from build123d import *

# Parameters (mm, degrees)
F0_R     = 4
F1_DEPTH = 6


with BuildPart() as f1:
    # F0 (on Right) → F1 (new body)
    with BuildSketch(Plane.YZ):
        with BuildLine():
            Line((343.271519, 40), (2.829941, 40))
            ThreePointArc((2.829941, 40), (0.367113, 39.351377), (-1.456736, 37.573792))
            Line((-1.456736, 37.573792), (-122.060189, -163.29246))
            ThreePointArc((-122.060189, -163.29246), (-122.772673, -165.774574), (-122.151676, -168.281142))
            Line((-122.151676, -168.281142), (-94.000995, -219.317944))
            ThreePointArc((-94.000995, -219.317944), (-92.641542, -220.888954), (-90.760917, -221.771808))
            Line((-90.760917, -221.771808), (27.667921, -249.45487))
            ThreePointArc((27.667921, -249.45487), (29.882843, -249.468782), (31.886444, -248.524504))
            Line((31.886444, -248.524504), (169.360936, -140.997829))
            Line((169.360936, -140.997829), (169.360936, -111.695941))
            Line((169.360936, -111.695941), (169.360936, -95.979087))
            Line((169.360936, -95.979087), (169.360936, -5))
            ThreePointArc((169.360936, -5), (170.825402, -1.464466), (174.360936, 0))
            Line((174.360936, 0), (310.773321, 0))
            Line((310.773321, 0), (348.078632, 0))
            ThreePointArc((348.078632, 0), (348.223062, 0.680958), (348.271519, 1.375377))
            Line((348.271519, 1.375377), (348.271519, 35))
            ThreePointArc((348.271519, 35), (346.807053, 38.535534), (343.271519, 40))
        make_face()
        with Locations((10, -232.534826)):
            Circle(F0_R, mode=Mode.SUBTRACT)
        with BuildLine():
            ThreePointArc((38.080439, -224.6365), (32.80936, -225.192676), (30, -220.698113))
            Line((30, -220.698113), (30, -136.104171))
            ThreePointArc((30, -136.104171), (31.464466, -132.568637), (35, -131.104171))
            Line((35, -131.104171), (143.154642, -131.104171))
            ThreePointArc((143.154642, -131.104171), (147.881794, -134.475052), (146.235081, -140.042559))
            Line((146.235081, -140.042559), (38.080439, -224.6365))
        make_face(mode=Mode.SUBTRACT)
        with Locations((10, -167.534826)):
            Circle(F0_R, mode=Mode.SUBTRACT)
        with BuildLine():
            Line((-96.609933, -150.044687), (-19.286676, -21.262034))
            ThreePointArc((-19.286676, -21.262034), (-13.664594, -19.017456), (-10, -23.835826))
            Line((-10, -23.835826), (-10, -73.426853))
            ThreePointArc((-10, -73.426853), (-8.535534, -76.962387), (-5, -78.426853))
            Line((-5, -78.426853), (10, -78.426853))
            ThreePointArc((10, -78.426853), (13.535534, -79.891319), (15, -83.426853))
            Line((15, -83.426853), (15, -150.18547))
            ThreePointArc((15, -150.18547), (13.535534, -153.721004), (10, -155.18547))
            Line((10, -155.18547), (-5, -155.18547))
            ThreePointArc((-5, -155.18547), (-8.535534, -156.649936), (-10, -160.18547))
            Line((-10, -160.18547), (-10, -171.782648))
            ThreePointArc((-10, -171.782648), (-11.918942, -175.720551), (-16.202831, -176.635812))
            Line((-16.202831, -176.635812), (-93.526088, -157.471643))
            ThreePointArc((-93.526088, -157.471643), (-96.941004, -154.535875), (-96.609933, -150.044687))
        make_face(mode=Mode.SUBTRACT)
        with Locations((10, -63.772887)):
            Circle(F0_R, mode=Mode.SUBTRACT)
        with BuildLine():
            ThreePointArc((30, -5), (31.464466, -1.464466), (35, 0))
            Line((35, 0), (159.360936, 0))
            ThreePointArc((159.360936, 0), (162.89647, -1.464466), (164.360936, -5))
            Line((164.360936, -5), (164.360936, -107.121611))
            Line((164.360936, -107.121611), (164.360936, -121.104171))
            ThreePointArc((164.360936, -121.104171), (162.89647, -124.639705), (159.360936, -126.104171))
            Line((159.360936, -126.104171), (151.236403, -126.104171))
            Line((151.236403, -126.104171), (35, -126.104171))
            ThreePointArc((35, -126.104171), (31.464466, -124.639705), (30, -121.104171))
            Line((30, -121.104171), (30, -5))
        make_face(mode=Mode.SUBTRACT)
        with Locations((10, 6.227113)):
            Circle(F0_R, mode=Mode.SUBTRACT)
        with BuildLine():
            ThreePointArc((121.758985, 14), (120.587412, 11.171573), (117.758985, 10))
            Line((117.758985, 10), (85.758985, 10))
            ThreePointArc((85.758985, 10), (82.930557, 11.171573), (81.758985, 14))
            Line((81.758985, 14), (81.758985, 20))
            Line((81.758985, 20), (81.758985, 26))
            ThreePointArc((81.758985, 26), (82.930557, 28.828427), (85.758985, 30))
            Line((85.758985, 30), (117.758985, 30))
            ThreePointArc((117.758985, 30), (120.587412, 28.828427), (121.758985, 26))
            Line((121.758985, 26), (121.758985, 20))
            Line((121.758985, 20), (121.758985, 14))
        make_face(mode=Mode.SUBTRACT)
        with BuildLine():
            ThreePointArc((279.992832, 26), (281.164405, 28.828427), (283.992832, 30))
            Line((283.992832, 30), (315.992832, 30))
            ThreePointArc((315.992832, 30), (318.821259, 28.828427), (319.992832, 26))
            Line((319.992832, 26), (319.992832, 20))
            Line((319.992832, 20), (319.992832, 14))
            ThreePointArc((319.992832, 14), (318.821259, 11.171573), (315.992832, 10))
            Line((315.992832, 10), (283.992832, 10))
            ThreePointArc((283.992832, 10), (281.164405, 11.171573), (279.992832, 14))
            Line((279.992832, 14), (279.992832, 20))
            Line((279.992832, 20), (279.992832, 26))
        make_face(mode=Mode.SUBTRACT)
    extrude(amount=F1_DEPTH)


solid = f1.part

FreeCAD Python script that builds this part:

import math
import FreeCAD as App
import Part
import Sketcher

doc = App.newDocument("Part")
body = doc.addObject("PartDesign::Body", "Body")

sketch1 = body.newObject("Sketcher::SketchObject", "Sketch")
sketch1.AttachmentSupport = (doc.getObject("YZ_Plane"), [""])
sketch1.MapMode = "FlatFace"
sketch1.addGeometry([
    Part.LineSegment(App.Vector(343.271519, 40, 0), App.Vector(2.829941, 40, 0)),
    Part.ArcOfCircle(Part.Circle(App.Vector(2.82994, 35, 0), App.Vector(0, 0, 1), 5), math.radians(89.99999), math.radians(149.018696)),
    Part.LineSegment(App.Vector(-1.456736, 37.573792, 0), App.Vector(-122.060189, -163.29246, 0)),
    Part.ArcOfCircle(Part.Circle(App.Vector(-117.773517, -165.866253, 0), App.Vector(0, 0, 1), 4.999997), math.radians(149.018661), math.radians(208.88009)),
    Part.LineSegment(App.Vector(-122.151676, -168.281142, 0), App.Vector(-94.000995, -219.317944, 0)),
    Part.ArcOfCircle(Part.Circle(App.Vector(-89.622836, -216.903058, 0), App.Vector(0, 0, 1), 4.999995), math.radians(-151.119946), math.radians(-103.156785)),
    Part.LineSegment(App.Vector(-90.760917, -221.771808, 0), App.Vector(27.667921, -249.45487, 0)),
    Part.ArcOfCircle(Part.Circle(App.Vector(28.806006, -244.586121, 0), App.Vector(0, 0, 1), 4.999996), math.radians(-103.156832), math.radians(-51.96898)),
    Part.LineSegment(App.Vector(31.886444, -248.524504, 0), App.Vector(169.360936, -140.997829, 0)),
    Part.LineSegment(App.Vector(169.360936, -140.997829, 0), App.Vector(169.360936, -5, 0)),
    Part.ArcOfCircle(Part.Circle(App.Vector(174.360936, -5, 0), App.Vector(0, 0, 1), 5), math.radians(89.999996), math.radians(180.000004)),
    Part.LineSegment(App.Vector(174.360936, 0, 0), App.Vector(348.078632, 0, 0)),
    Part.ArcOfCircle(Part.Circle(App.Vector(343.27149, 1.375382, 0), App.Vector(0, 0, 1), 5.000029), math.radians(-15.966473), math.radians(-0.000057)),
    Part.LineSegment(App.Vector(348.271519, 1.375377, 0), App.Vector(348.271519, 35, 0)),
    Part.ArcOfCircle(Part.Circle(App.Vector(343.271519, 35, 0), App.Vector(0, 0, 1), 5), math.radians(-0.000004), math.radians(90.000004)),
    Part.Circle(App.Vector(10, -232.534826, 0), App.Vector(0, 0, 1), 4),
    Part.LineSegment(App.Vector(146.235081, -140.042559, 0), App.Vector(38.080439, -224.6365, 0)),
    Part.ArcOfCircle(Part.Circle(App.Vector(35, -220.698113, 0), App.Vector(0, 0, 1), 5), math.radians(179.999998), math.radians(308.031012)),
    Part.LineSegment(App.Vector(30, -220.698113, 0), App.Vector(30, -136.104171, 0)),
    Part.ArcOfCircle(Part.Circle(App.Vector(35, -136.104171, 0), App.Vector(0, 0, 1), 5), math.radians(89.999996), math.radians(180.000004)),
    Part.LineSegment(App.Vector(35, -131.104171, 0), App.Vector(143.154642, -131.104171, 0)),
    Part.ArcOfCircle(Part.Circle(App.Vector(143.154641, -136.104172, 0), App.Vector(0, 0, 1), 5.000001), math.radians(-51.968987), math.radians(89.999989)),
    Part.Circle(App.Vector(10, -167.534826, 0), App.Vector(0, 0, 1), 4),
    Part.ArcOfCircle(Part.Circle(App.Vector(-92.323256, -152.618479, 0), App.Vector(0, 0, 1), 5.000001), math.radians(149.018699), math.radians(256.080026)),
    Part.LineSegment(App.Vector(-96.609933, -150.044687, 0), App.Vector(-19.286676, -21.262034, 0)),
    Part.ArcOfCircle(Part.Circle(App.Vector(-15, -23.835826, 0), App.Vector(0, 0, 1), 5), math.radians(0), math.radians(149.018691)),
    Part.LineSegment(App.Vector(-10, -23.835826, 0), App.Vector(-10, -73.426853, 0)),
    Part.ArcOfCircle(Part.Circle(App.Vector(-5, -73.426853, 0), App.Vector(0, 0, 1), 5), math.radians(179.999996), math.radians(270.000004)),
    Part.LineSegment(App.Vector(-5, -78.426853, 0), App.Vector(10, -78.426853, 0)),
    Part.ArcOfCircle(Part.Circle(App.Vector(10, -83.426853, 0), App.Vector(0, 0, 1), 5), math.radians(-0.000004), math.radians(90.000004)),
    Part.LineSegment(App.Vector(15, -83.426853, 0), App.Vector(15, -150.18547, 0)),
    Part.ArcOfCircle(Part.Circle(App.Vector(10, -150.18547, 0), App.Vector(0, 0, 1), 5), math.radians(-90.000004), math.radians(0.000004)),
    Part.LineSegment(App.Vector(10, -155.18547, 0), App.Vector(-5, -155.18547, 0)),
    Part.ArcOfCircle(Part.Circle(App.Vector(-5, -160.18547, 0), App.Vector(0, 0, 1), 5), math.radians(89.999996), math.radians(180.000004)),
    Part.LineSegment(App.Vector(-10, -160.18547, 0), App.Vector(-10, -171.782648, 0)),
    Part.ArcOfCircle(Part.Circle(App.Vector(-15.000001, -171.782647, 0), App.Vector(0, 0, 1), 5.000001), math.radians(-103.919951), math.radians(-0.000006)),
    Part.LineSegment(App.Vector(-16.202831, -176.635812, 0), App.Vector(-93.526088, -157.471643, 0)),
    Part.Circle(App.Vector(10, -63.772887, 0), App.Vector(0, 0, 1), 4),
    Part.LineSegment(App.Vector(30, -121.104171, 0), App.Vector(30, -5, 0)),
    Part.ArcOfCircle(Part.Circle(App.Vector(35, -5, 0), App.Vector(0, 0, 1), 5), math.radians(89.999996), math.radians(180.000004)),
    Part.LineSegment(App.Vector(35, 0, 0), App.Vector(159.360936, 0, 0)),
    Part.ArcOfCircle(Part.Circle(App.Vector(159.360936, -5, 0), App.Vector(0, 0, 1), 5), math.radians(-0.000004), math.radians(90.000004)),
    Part.LineSegment(App.Vector(164.360936, -5, 0), App.Vector(164.360936, -121.104171, 0)),
    Part.ArcOfCircle(Part.Circle(App.Vector(159.360936, -121.104171, 0), App.Vector(0, 0, 1), 5), math.radians(-90.000004), math.radians(0.000004)),
    Part.LineSegment(App.Vector(159.360936, -126.104171, 0), App.Vector(35, -126.104171, 0)),
    Part.ArcOfCircle(Part.Circle(App.Vector(35, -121.104171, 0), App.Vector(0, 0, 1), 5), math.radians(179.999996), math.radians(270.000004)),
    Part.Circle(App.Vector(10, 6.227113, 0), App.Vector(0, 0, 1), 4),
    Part.LineSegment(App.Vector(121.758985, 26, 0), App.Vector(121.758985, 14, 0)),
    Part.ArcOfCircle(Part.Circle(App.Vector(117.758985, 14, 0), App.Vector(0, 0, 1), 4), math.radians(-89.999994), math.radians(-0.000006)),
    Part.LineSegment(App.Vector(117.758985, 10, 0), App.Vector(85.758985, 10, 0)),
    Part.ArcOfCircle(Part.Circle(App.Vector(85.758984, 13.999999, 0), App.Vector(0, 0, 1), 3.999999), math.radians(179.999982), math.radians(270.000018)),
    Part.LineSegment(App.Vector(81.758985, 14, 0), App.Vector(81.758985, 26, 0)),
    Part.ArcOfCircle(Part.Circle(App.Vector(85.758984, 26.000001, 0), App.Vector(0, 0, 1), 3.999999), math.radians(89.999982), math.radians(180.000018)),
    Part.LineSegment(App.Vector(85.758985, 30, 0), App.Vector(117.758985, 30, 0)),
    Part.ArcOfCircle(Part.Circle(App.Vector(117.758985, 26, 0), App.Vector(0, 0, 1), 4), math.radians(0.000006), math.radians(89.999994)),
    Part.LineSegment(App.Vector(279.992832, 14, 0), App.Vector(279.992832, 26, 0)),
    Part.ArcOfCircle(Part.Circle(App.Vector(283.992832, 26, 0), App.Vector(0, 0, 1), 4), math.radians(90.000006), math.radians(179.999994)),
    Part.LineSegment(App.Vector(283.992832, 30, 0), App.Vector(315.992832, 30, 0)),
    Part.ArcOfCircle(Part.Circle(App.Vector(315.992832, 26, 0), App.Vector(0, 0, 1), 4), math.radians(0.000006), math.radians(89.999994)),
    Part.LineSegment(App.Vector(319.992832, 26, 0), App.Vector(319.992832, 14, 0)),
    Part.ArcOfCircle(Part.Circle(App.Vector(315.992832, 14, 0), App.Vector(0, 0, 1), 4), math.radians(-89.999994), math.radians(-0.000006)),
    Part.LineSegment(App.Vector(315.992832, 10, 0), App.Vector(283.992832, 10, 0)),
    Part.ArcOfCircle(Part.Circle(App.Vector(283.992832, 14, 0), App.Vector(0, 0, 1), 4), math.radians(-179.999994), math.radians(-90.000006)),
], False)
sketch1.addConstraint([
    Sketcher.Constraint("Tangent", 0, 2, 1, 1),
    Sketcher.Constraint("Tangent", 1, 2, 2, 1),
    Sketcher.Constraint("Tangent", 2, 2, 3, 1),
    Sketcher.Constraint("Tangent", 3, 2, 4, 1),
    Sketcher.Constraint("Tangent", 4, 2, 5, 1),
    Sketcher.Constraint("Tangent", 5, 2, 6, 1),
    Sketcher.Constraint("Tangent", 6, 2, 7, 1),
    Sketcher.Constraint("Tangent", 7, 2, 8, 1),
    Sketcher.Constraint("Coincident", 8, 2, 9, 1),
    Sketcher.Constraint("Tangent", 9, 2, 10, 2),
    Sketcher.Constraint("Tangent", 10, 1, 11, 1),
    Sketcher.Constraint("Coincident", 11, 2, 12, 1),
    Sketcher.Constraint("Tangent", 12, 2, 13, 1),
    Sketcher.Constraint("Tangent", 13, 2, 14, 1),
    Sketcher.Constraint("Tangent", 14, 2, 0, 1),
    Sketcher.Constraint("Tangent", 16, 2, 17, 2),
    Sketcher.Constraint("Tangent", 17, 1, 18, 1),
    Sketcher.Constraint("Tangent", 18, 2, 19, 2),
    Sketcher.Constraint("Tangent", 19, 1, 20, 1),
    Sketcher.Constraint("Tangent", 20, 2, 21, 2),
    Sketcher.Constraint("Tangent", 21, 1, 16, 1),
    Sketcher.Constraint("Tangent", 23, 1, 24, 1),
    Sketcher.Constraint("Tangent", 24, 2, 25, 2),
    Sketcher.Constraint("Tangent", 25, 1, 26, 1),
    Sketcher.Constraint("Tangent", 26, 2, 27, 1),
    Sketcher.Constraint("Tangent", 27, 2, 28, 1),
    Sketcher.Constraint("Tangent", 28, 2, 29, 2),
    Sketcher.Constraint("Tangent", 29, 1, 30, 1),
    Sketcher.Constraint("Tangent", 30, 2, 31, 2),
    Sketcher.Constraint("Tangent", 31, 1, 32, 1),
    Sketcher.Constraint("Tangent", 32, 2, 33, 1),
    Sketcher.Constraint("Tangent", 33, 2, 34, 1),
    Sketcher.Constraint("Tangent", 34, 2, 35, 2),
    Sketcher.Constraint("Tangent", 35, 1, 36, 1),
    Sketcher.Constraint("Tangent", 36, 2, 23, 2),
    Sketcher.Constraint("Tangent", 38, 2, 39, 2),
    Sketcher.Constraint("Tangent", 39, 1, 40, 1),
    Sketcher.Constraint("Tangent", 40, 2, 41, 2),
    Sketcher.Constraint("Tangent", 41, 1, 42, 1),
    Sketcher.Constraint("Tangent", 42, 2, 43, 2),
    Sketcher.Constraint("Tangent", 43, 1, 44, 1),
    Sketcher.Constraint("Tangent", 44, 2, 45, 2),
    Sketcher.Constraint("Tangent", 45, 1, 38, 1),
    Sketcher.Constraint("Tangent", 47, 2, 48, 2),
    Sketcher.Constraint("Tangent", 48, 1, 49, 1),
    Sketcher.Constraint("Tangent", 49, 2, 50, 2),
    Sketcher.Constraint("Tangent", 50, 1, 51, 1),
    Sketcher.Constraint("Tangent", 51, 2, 52, 2),
    Sketcher.Constraint("Tangent", 52, 1, 53, 1),
    Sketcher.Constraint("Tangent", 53, 2, 54, 2),
    Sketcher.Constraint("Tangent", 54, 1, 47, 1),
    Sketcher.Constraint("Tangent", 55, 2, 56, 2),
    Sketcher.Constraint("Tangent", 56, 1, 57, 1),
    Sketcher.Constraint("Tangent", 57, 2, 58, 2),
    Sketcher.Constraint("Tangent", 58, 1, 59, 1),
    Sketcher.Constraint("Tangent", 59, 2, 60, 2),
    Sketcher.Constraint("Tangent", 60, 1, 61, 1),
    Sketcher.Constraint("Tangent", 61, 2, 62, 2),
    Sketcher.Constraint("Tangent", 62, 1, 55, 1),
    Sketcher.Constraint("Horizontal", 0),
    Sketcher.Constraint("Vertical", 9),
    Sketcher.Constraint("Horizontal", 11),
    Sketcher.Constraint("Vertical", 13),
    Sketcher.Constraint("Vertical", 18),
    Sketcher.Constraint("Horizontal", 20),
    Sketcher.Constraint("Vertical", 26),
    Sketcher.Constraint("Horizontal", 28),
    Sketcher.Constraint("Vertical", 30),
    Sketcher.Constraint("Horizontal", 32),
    Sketcher.Constraint("Vertical", 34),
    Sketcher.Constraint("Vertical", 38),
    Sketcher.Constraint("Horizontal", 40),
    Sketcher.Constraint("Vertical", 42),
    Sketcher.Constraint("Horizontal", 44),
    Sketcher.Constraint("Vertical", 47),
    Sketcher.Constraint("Horizontal", 49),
    Sketcher.Constraint("Vertical", 51),
    Sketcher.Constraint("Horizontal", 53),
    Sketcher.Constraint("Vertical", 55),
    Sketcher.Constraint("Horizontal", 57),
    Sketcher.Constraint("Vertical", 59),
    Sketcher.Constraint("Horizontal", 61),
    Sketcher.Constraint("Equal", 3, 5),
    Sketcher.Constraint("Equal", 5, 7),
    Sketcher.Constraint("Equal", 1, 10),
    Sketcher.Constraint("Equal", 10, 14),
    Sketcher.Constraint("Equal", 14, 17),
    Sketcher.Constraint("Equal", 17, 19),
    Sketcher.Constraint("Equal", 19, 21),
    Sketcher.Constraint("Equal", 15, 22),
    Sketcher.Constraint("Equal", 21, 23),
    Sketcher.Constraint("Equal", 23, 25),
    Sketcher.Constraint("Equal", 25, 27),
    Sketcher.Constraint("Equal", 27, 29),
    Sketcher.Constraint("Equal", 29, 31),
    Sketcher.Constraint("Equal", 31, 33),
    Sketcher.Constraint("Equal", 33, 35),
    Sketcher.Constraint("Equal", 22, 37),
    Sketcher.Constraint("Equal", 35, 39),
    Sketcher.Constraint("Equal", 39, 41),
    Sketcher.Constraint("Equal", 41, 43),
    Sketcher.Constraint("Equal", 43, 45),
    Sketcher.Constraint("Equal", 37, 46),
    Sketcher.Constraint("Equal", 46, 48),
    Sketcher.Constraint("Equal", 48, 50),
    Sketcher.Constraint("Equal", 50, 52),
    Sketcher.Constraint("Equal", 52, 54),
    Sketcher.Constraint("Equal", 54, 56),
    Sketcher.Constraint("Equal", 56, 58),
    Sketcher.Constraint("Equal", 58, 60),
    Sketcher.Constraint("Equal", 60, 62),
    Sketcher.Constraint("PointOnObject", 10, 1, -1),
    Sketcher.Constraint("PointOnObject", 39, 1, -1),
    Sketcher.Constraint("Parallel", 8, 16),
    Sketcher.Constraint("Parallel", 2, 24),
    Sketcher.Constraint("Horizontal", 54, 3, 56, 3),
    Sketcher.Constraint("Horizontal", 50, 3, 60, 3),
    Sketcher.Constraint("Vertical", 15, 3, 22, 3),
    Sketcher.Constraint("Vertical", 22, 3, 29, 3),
    Sketcher.Constraint("Vertical", 27, 3, 33, 3),
    Sketcher.Constraint("Vertical", 31, 3, 37, 3),
    Sketcher.Constraint("Vertical", 19, 3, 39, 3),
    Sketcher.Constraint("Vertical", 37, 3, 46, 3),
    Sketcher.Constraint("Equal", 53, 57),
    Sketcher.Constraint("Diameter", 15, 8.0),
    Sketcher.Constraint("Radius", 1, 5.0),
    Sketcher.Constraint("DistanceX", 28, 1, 28, 2, 15.0),
    Sketcher.Constraint("DistanceX", 49, 2, 49, 1, 32.0),
    Sketcher.Constraint("DistanceY", 47, 2, 47, 1, 12.0),
    Sketcher.Constraint("DistanceY", -1, 1, 1, 3, 35.0),
    Sketcher.Constraint("DistanceX", -1, 1, 15, 3, 10.0),
    Sketcher.Constraint("DistanceX", -1, 1, 17, 3, 35.0),
    Sketcher.Constraint("DistanceY", -1, 1, 48, 3, 14.0),
    Sketcher.Constraint("Radius", 12, 5.000029),
    Sketcher.Constraint("Radius", 3, 4.999997),
    Sketcher.Constraint("DistanceX", 0, 2, 0, 1, 340.441578),
    Sketcher.Constraint("DistanceX", 20, 1, 20, 2, 108.154642),
    Sketcher.Constraint("DistanceY", 9, 1, 9, 2, 135.997829),
    Sketcher.Constraint("DistanceY", 18, 1, 18, 2, 84.593942),
    Sketcher.Constraint("DistanceY", 38, 1, 38, 2, 116.104171),
    Sketcher.Constraint("DistanceY", 16, 2, -1, 1, 224.6365),
    Sketcher.Constraint("Distance", 4, 58.285641),
    Sketcher.Constraint("Distance", 24, 150.212708),
    Sketcher.Constraint("DistanceX", 11, 1, 11, 2, 173.717696),
    Sketcher.Constraint("DistanceX", 40, 1, 40, 2, 124.360936),
    Sketcher.Constraint("DistanceY", 13, 1, 13, 2, 33.624623),
    Sketcher.Constraint("DistanceY", 26, 2, 26, 1, 49.591027),
    Sketcher.Constraint("DistanceY", 30, 2, 30, 1, 66.758617),
    Sketcher.Constraint("DistanceY", 34, 2, 34, 1, 11.597178),
    Sketcher.Constraint("DistanceX", -1, 1, 1, 3, 2.82994),
    Sketcher.Constraint("DistanceY", 5, 3, -1, 1, 216.903058),
    Sketcher.Constraint("DistanceY", 7, 3, -1, 1, 244.586121),
    Sketcher.Constraint("DistanceY", 23, 3, -1, 1, 152.618479),
    Sketcher.Constraint("DistanceY", 31, 3, -1, 1, 150.18547),
    Sketcher.Constraint("DistanceX", -1, 1, 58, 3, 315.992832),
    Sketcher.Constraint("DistanceX", 2, 2, -1, 1, 122.060189),
    Sketcher.Constraint("DistanceY", 15, 3, -1, 1, 232.534826),
    Sketcher.Constraint("DistanceY", 22, 3, -1, 1, 167.534826),
    Sketcher.Constraint("DistanceY", 37, 3, -1, 1, 63.772887),
    Sketcher.Constraint("DistanceY", -1, 1, 46, 3, 6.227113),
    Sketcher.Constraint("DistanceX", -1, 1, 48, 3, 117.758985),
])
pad1 = body.newObject("PartDesign::Pad", "Pad")
pad1.Profile = sketch1
pad1.Length = 6

doc.recompute()
